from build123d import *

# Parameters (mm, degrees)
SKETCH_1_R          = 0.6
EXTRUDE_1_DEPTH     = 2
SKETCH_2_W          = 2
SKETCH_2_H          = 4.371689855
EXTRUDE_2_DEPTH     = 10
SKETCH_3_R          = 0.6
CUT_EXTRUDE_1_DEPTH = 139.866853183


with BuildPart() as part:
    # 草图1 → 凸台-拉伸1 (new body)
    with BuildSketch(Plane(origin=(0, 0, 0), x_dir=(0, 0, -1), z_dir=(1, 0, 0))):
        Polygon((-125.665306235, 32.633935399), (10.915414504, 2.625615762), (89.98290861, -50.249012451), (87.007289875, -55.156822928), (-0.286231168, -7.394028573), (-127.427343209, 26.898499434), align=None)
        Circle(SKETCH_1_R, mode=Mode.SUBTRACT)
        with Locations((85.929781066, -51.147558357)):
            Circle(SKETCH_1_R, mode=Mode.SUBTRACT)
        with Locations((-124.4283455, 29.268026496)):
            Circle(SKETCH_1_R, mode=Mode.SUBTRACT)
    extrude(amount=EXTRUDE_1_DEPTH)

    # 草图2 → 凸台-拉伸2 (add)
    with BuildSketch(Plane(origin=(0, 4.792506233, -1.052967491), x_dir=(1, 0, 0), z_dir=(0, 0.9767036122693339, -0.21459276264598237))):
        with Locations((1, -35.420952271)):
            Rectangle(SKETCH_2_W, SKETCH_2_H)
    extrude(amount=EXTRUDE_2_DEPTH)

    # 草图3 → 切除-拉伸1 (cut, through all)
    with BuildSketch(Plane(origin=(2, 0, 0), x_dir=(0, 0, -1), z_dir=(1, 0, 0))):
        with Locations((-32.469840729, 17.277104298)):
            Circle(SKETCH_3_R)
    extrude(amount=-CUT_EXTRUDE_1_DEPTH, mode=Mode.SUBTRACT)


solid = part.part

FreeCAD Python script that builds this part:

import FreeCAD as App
import Part
import Sketcher


def add_polygon(sketch, points):
    """Adds a closed chain of lines whose ends are joined by coincident constraints."""
    first, n = sketch.GeometryCount, len(points)
    for a, b in zip(points, points[1:] + points[:1]):
        sketch.addGeometry(Part.LineSegment(App.Vector(*a, 0), App.Vector(*b, 0)), False)
    for i in range(n):
        sketch.addConstraint(Sketcher.Constraint("Coincident", first + i, 2, first + (i + 1) % n, 1))

doc = App.newDocument("Part")
body = doc.addObject("PartDesign::Body", "Body")

# Sketch on YZ plane
sketch1 = doc.addObject("Sketcher::SketchObject", "Sketch")
body.addObject(sketch1)
sketch1.AttachmentSupport = (doc.YZ_Plane, [""])
sketch1.MapMode = "FlatFace"
add_polygon(sketch1, [(2.625616, -10.915415), (32.633935, 125.665306), (26.898499, 127.427343), (-7.394029, 0.286231), (-55.156823, -87.00729), (-50.249012, -89.982909)])  # lines 0-5
sketch1.addGeometry(Part.Circle(App.Vector(-51.147558, -85.929781, 0), App.Vector(0, 0, 1), 0.6), False)  # 6
sketch1.addGeometry(Part.Circle(App.Vector(0, 0, 0), App.Vector(0, 0, 1), 0.6), False)  # 7
sketch1.addGeometry(Part.Circle(App.Vector(29.268026, 124.428346, 0), App.Vector(0, 0, 1), 0.6), False)  # 8
sketch1.addConstraint([
    Sketcher.Constraint("Coincident", 7, 3, -1, 1),
    Sketcher.Constraint("Equal", 6, 7),
    Sketcher.Constraint("Equal", 7, 8),
    Sketcher.Constraint("Diameter", 6, 1.2),
    Sketcher.Constraint("Distance", 1, 6.0),
    Sketcher.Constraint("DistanceX", -1, 1, 1, 2, 26.898499),
    Sketcher.Constraint("Distance", 0, 139.838452),
    Sketcher.Constraint("DistanceX", 6, 3, -1, 1, 51.147558),
    Sketcher.Constraint("DistanceY", 6, 3, -1, 1, 85.929781),
    Sketcher.Constraint("DistanceX", 2, 2, -1, 1, 7.394029),
    Sketcher.Constraint("DistanceY", -1, 1, 2, 2, 0.286231),
    Sketcher.Constraint("DistanceY", 3, 2, -1, 1, 87.00729),
    Sketcher.Constraint("DistanceY", 4, 2, -1, 1, 89.982909),
    Sketcher.Constraint("DistanceX", 8, 3, 0, 2, 3.365909),
    Sketcher.Constraint("DistanceY", 8, 3, 0, 2, 1.236961),
    Sketcher.Constraint("DistanceX", 3, 2, 8, 3, 84.424849),
    Sketcher.Constraint("DistanceX", 3, 2, 4, 2, 4.90781),
    Sketcher.Constraint("DistanceX", 4, 2, 5, 2, 52.874628),
    Sketcher.Constraint("Distance", 2, 131.684623),
    Sketcher.Constraint("Distance", 3, 99.505997),
])
pad1 = doc.addObject("PartDesign::Pad", "Pad")
body.addObject(pad1)
pad1.Profile = sketch1
pad1.Length = 2

# Sketch on an angled plane
sketch2 = doc.addObject("Sketcher::SketchObject", "Sketch001")
body.addObject(sketch2)
sketch2.Placement = App.Placement(App.Vector(0, 4.792506, -1.052967), App.Rotation(App.Vector(1, 0, 0), App.Vector(0, -0.214592763, -0.976703612), App.Vector(0, 0.976703612, -0.214592763), "ZXY"))
add_polygon(sketch2, [(0, -33.235107), (0, -37.606797), (2, -37.606797), (2, -33.235107)])  # lines 0-3
sketch2.addConstraint([
    Sketcher.Constraint("Vertical", 0),
    Sketcher.Constraint("Horizontal", 1),
    Sketcher.Constraint("Vertical", 2),
    Sketcher.Constraint("Horizontal", 3),
    Sketcher.Constraint("PointOnObject", 0, 2, -2),
    Sketcher.Constraint("DistanceX", 1, 1, 1, 2, 2.0),
    Sketcher.Constraint("DistanceY", 0, 2, 0, 1, 4.37169),
    Sketcher.Constraint("DistanceY", 0, 2, -1, 1, 37.606797),
])
pad2 = doc.addObject("PartDesign::Pad", "Pad001")
body.addObject(pad2)
pad2.Profile = sketch2
pad2.Length = 10

# Sketch on YZ plane
sketch3 = doc.addObject("Sketcher::SketchObject", "Sketch002")
body.addObject(sketch3)
sketch3.AttachmentSupport = (doc.YZ_Plane, [""])
sketch3.MapMode = "FlatFace"
sketch3.AttachmentOffset = App.Placement(App.Vector(0, 0, 2), App.Rotation())
sketch3.addGeometry(Part.Circle(App.Vector(17.277104, 32.469841, 0), App.Vector(0, 0, 1), 0.6), False)
sketch3.addConstraint([
    Sketcher.Constraint("Diameter", 0, 1.2),
    Sketcher.Constraint("DistanceY", -1, 1, 0, 3, 32.469841),
    Sketcher.Constraint("DistanceX", -1, 1, 0, 3, 17.277104),
])
pocket1 = doc.addObject("PartDesign::Pocket", "Pocket")
body.addObject(pocket1)
pocket1.Profile = sketch3
pocket1.Type = "ThroughAll"

doc.recompute()
